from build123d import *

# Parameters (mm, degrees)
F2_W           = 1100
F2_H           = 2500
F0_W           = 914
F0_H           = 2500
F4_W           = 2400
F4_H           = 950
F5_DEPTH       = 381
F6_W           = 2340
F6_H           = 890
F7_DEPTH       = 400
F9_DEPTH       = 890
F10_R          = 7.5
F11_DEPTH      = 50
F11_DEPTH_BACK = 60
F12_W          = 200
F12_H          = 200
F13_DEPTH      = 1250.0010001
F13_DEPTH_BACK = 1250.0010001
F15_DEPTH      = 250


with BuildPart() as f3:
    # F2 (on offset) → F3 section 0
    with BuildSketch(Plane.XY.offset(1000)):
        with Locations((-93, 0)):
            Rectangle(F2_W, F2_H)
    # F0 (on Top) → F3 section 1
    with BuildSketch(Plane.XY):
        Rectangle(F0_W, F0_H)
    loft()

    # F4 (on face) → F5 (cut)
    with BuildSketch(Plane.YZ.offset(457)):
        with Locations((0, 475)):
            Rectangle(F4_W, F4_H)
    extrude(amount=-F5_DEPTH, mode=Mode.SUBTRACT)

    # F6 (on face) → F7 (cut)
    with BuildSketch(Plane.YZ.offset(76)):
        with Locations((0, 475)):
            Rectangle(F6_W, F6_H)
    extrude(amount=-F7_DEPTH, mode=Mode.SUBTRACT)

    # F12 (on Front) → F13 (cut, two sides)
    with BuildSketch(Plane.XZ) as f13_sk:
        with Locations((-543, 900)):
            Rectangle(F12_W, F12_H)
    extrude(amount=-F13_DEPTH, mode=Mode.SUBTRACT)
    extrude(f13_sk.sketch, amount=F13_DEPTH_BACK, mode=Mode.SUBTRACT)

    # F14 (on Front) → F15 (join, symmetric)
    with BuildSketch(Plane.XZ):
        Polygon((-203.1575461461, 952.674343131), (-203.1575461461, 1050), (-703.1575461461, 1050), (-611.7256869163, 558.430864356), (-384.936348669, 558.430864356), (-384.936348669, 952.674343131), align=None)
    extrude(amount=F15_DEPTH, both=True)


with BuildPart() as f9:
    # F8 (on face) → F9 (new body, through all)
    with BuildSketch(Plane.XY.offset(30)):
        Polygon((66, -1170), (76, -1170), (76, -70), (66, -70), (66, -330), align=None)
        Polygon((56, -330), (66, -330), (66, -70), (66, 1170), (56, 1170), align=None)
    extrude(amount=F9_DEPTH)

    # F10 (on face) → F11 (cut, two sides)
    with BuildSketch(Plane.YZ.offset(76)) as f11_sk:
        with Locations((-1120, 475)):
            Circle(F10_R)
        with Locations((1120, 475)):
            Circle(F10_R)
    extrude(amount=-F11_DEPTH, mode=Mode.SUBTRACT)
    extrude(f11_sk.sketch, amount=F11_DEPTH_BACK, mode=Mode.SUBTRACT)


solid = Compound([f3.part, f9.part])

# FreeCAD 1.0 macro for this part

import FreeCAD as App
import Part
import Sketcher

V = App.Vector


def add_polygon(sketch, points):
    """Adds a closed chain of lines whose ends are joined by coincident constraints."""
    first, n = sketch.GeometryCount, len(points)
    for a, b in zip(points, points[1:] + points[:1]):
        sketch.addGeometry(Part.LineSegment(App.Vector(*a, 0), App.Vector(*b, 0)), False)
    for i in range(n):
        sketch.addConstraint(Sketcher.Constraint("Coincident", first + i, 2, first + (i + 1) % n, 1))

doc = App.newDocument("Part")
body = doc.addObject("PartDesign::Body", "Body")

# Sketch on XY plane
sketch1 = body.newObject("Sketcher::SketchObject", "Sketch")
sketch1.AttachmentSupport = (doc.getObject("XY_Plane"), [""])
sketch1.MapMode = "FlatFace"
sketch1.AttachmentOffset = App.Placement(V(0, 0, 1000), App.Rotation())
add_polygon(sketch1, [(-643, 1250), (-643, -1250), (457, -1250), (457, 1250)])  # lines 0-3
sketch1.addConstraint([
    Sketcher.Constraint("Vertical", 0),
    Sketcher.Constraint("Horizontal", 1),
    Sketcher.Constraint("Vertical", 2),
    Sketcher.Constraint("Horizontal", 3),
    Sketcher.Constraint("DistanceX", 1, 1, 1, 2, 1100.0),
    Sketcher.Constraint("DistanceY", 0, 2, 0, 1, 2500.0),
    Sketcher.Constraint("DistanceX", 0, 2, -1, 1, 643.0),
    Sketcher.Constraint("DistanceY", 0, 2, -1, 1, 1250.0),
])

# Sketch on XY plane
sketch2 = body.newObject("Sketcher::SketchObject", "Sketch001")
sketch2.AttachmentSupport = (doc.getObject("XY_Plane"), [""])
sketch2.MapMode = "FlatFace"
add_polygon(sketch2, [(-457, 1250), (-457, -1250), (457, -1250), (457, 1250)])  # lines 0-3
sketch2.addConstraint([
    Sketcher.Constraint("Vertical", 0),
    Sketcher.Constraint("Horizontal", 1),
    Sketcher.Constraint("Vertical", 2),
    Sketcher.Constraint("Horizontal", 3),
    Sketcher.Constraint("Symmetric", 0, 2, 2, 2, -1, 1),
    Sketcher.Constraint("DistanceX", 1, 1, 1, 2, 914.0),
    Sketcher.Constraint("DistanceY", 0, 2, 0, 1, 2500.0),
])

additiveloft = body.newObject("PartDesign::AdditiveLoft", "AdditiveLoft")
additiveloft.Profile = sketch1
additiveloft.Sections = [sketch2]

# Sketch on YZ plane
sketch3 = body.newObject("Sketcher::SketchObject", "Sketch002")
sketch3.AttachmentSupport = (doc.getObject("YZ_Plane"), [""])
sketch3.MapMode = "FlatFace"
sketch3.AttachmentOffset = App.Placement(V(0, 0, 457), App.Rotation())
add_polygon(sketch3, [(-1200, 950), (-1200, 0), (1200, 0), (1200, 950)])  # lines 0-3
sketch3.addConstraint([
    Sketcher.Constraint("Vertical", 0),
    Sketcher.Constraint("Horizontal", 1),
    Sketcher.Constraint("Vertical", 2),
    Sketcher.Constraint("Horizontal", 3),
    Sketcher.Constraint("Symmetric", 0, 2, 1, 2, -1, 1),
    Sketcher.Constraint("DistanceX", 1, 1, 1, 2, 2400.0),
    Sketcher.Constraint("DistanceY", 0, 2, 0, 1, 950.0),
])
pocket1 = body.newObject("PartDesign::Pocket", "Pocket")
pocket1.Profile = sketch3
pocket1.Length = 381

# Sketch on YZ plane
sketch4 = body.newObject("Sketcher::SketchObject", "Sketch003")
sketch4.AttachmentSupport = (doc.getObject("YZ_Plane"), [""])
sketch4.MapMode = "FlatFace"
sketch4.AttachmentOffset = App.Placement(V(0, 0, 76), App.Rotation())
add_polygon(sketch4, [(-1170, 920), (-1170, 30), (1170, 30), (1170, 920)])  # lines 0-3
sketch4.addConstraint([
    Sketcher.Constraint("Vertical", 0),
    Sketcher.Constraint("Horizontal", 1),
    Sketcher.Constraint("Vertical", 2),
    Sketcher.Constraint("Horizontal", 3),
    Sketcher.Constraint("DistanceX", 1, 1, 1, 2, 2340.0),
    Sketcher.Constraint("DistanceY", 0, 2, 0, 1, 890.0),
    Sketcher.Constraint("DistanceX", 0, 2, -1, 1, 1170.0),
    Sketcher.Constraint("DistanceY", -1, 1, 0, 2, 30.0),
])
pocket2 = body.newObject("PartDesign::Pocket", "Pocket001")
pocket2.Profile = sketch4
pocket2.Length = 400

# Sketch on XZ plane
sketch5 = body.newObject("Sketcher::SketchObject", "Sketch004")
sketch5.AttachmentSupport = (doc.getObject("XZ_Plane"), [""])
sketch5.MapMode = "FlatFace"
add_polygon(sketch5, [(-643, 1000), (-643, 800), (-443, 800), (-443, 1000)])  # lines 0-3
sketch5.addConstraint([
    Sketcher.Constraint("Vertical", 0),
    Sketcher.Constraint("Horizontal", 1),
    Sketcher.Constraint("Vertical", 2),
    Sketcher.Constraint("Horizontal", 3),
    Sketcher.Constraint("Equal", 3, 0),
    Sketcher.Constraint("DistanceX", 1, 1, 1, 2, 200.0),
    Sketcher.Constraint("DistanceX", 0, 2, -1, 1, 643.0),
    Sketcher.Constraint("DistanceY", -1, 1, 0, 2, 800.0),
])
pocket3 = body.newObject("PartDesign::Pocket", "Pocket002")
pocket3.Profile = sketch5
pocket3.Type = "ThroughAll"
pocket3.Midplane = True

# Sketch on XZ plane
sketch6 = body.newObject("Sketcher::SketchObject", "Sketch005")
sketch6.AttachmentSupport = (doc.getObject("XZ_Plane"), [""])
sketch6.MapMode = "FlatFace"
add_polygon(sketch6, [(-203, 953), (-203, 1050), (-703, 1050), (-612, 558), (-385, 558), (-385, 953)])  # lines 0-5
sketch6.addConstraint([
    Sketcher.Constraint("Vertical", 0),
    Sketcher.Constraint("Horizontal", 1),
    Sketcher.Constraint("Horizontal", 3),
    Sketcher.Constraint("Vertical", 4),
    Sketcher.Constraint("Horizontal", 5),
    Sketcher.Constraint("DistanceX", 1, 2, 1, 1, 500.0),
    Sketcher.Constraint("Distance", 2, 500.0),
    Sketcher.Constraint("DistanceY", -1, 1, 0, 2, 1050.0),
    Sketcher.Constraint("DistanceX", 3, 1, 3, 2, 226.789338),
    Sketcher.Constraint("DistanceY", 4, 1, 4, 2, 394.243479),
    Sketcher.Constraint("DistanceX", 5, 1, 5, 2, 181.778803),
    Sketcher.Constraint("DistanceX", 3, 2, -1, 1, 384.936349),
])
pad1 = body.newObject("PartDesign::Pad", "Pad")
pad1.Profile = sketch6
pad1.Length = 500
pad1.Midplane = True
body2 = doc.addObject("PartDesign::Body", "Body001")

# Sketch on XY plane
sketch7 = body2.newObject("Sketcher::SketchObject", "Sketch006")
sketch7.AttachmentSupport = (doc.getObject("XY_Plane001"), [""])
sketch7.MapMode = "FlatFace"
sketch7.AttachmentOffset = App.Placement(V(0, 0, 30), App.Rotation())
add_polygon(sketch7, [(66, -1170), (76, -1170), (76, -70), (66, -70), (66, 1170), (56, 1170), (56, -330), (66, -330)])  # lines 0-7
sketch7.addConstraint([
    Sketcher.Constraint("Horizontal", 0),
    Sketcher.Constraint("Vertical", 1),
    Sketcher.Constraint("Horizontal", 2),
    Sketcher.Constraint("Vertical", 3),
    Sketcher.Constraint("Horizontal", 4),
    Sketcher.Constraint("Vertical", 5),
    Sketcher.Constraint("Horizontal", 6),
    Sketcher.Constraint("Vertical", 7),
    Sketcher.Constraint("Symmetric", 3, 2, 7, 2, -1),
    Sketcher.Constraint("Equal", 2, 4),
    Sketcher.Constraint("DistanceX", 0, 1, 0, 2, 10.0),
    Sketcher.Constraint("DistanceY", 1, 1, 1, 2, 1100.0),
    Sketcher.Constraint("DistanceY", 3, 1, 3, 2, 1240.0),
    Sketcher.Constraint("DistanceY", 5, 2, 5, 1, 1500.0),
    Sketcher.Constraint("DistanceX", -1, 1, 0, 2, 76.0),
])
pad2 = body2.newObject("PartDesign::Pad", "Pad001")
pad2.Profile = sketch7
pad2.Length = 890

# Sketch on YZ plane
sketch8 = body2.newObject("Sketcher::SketchObject", "Sketch007")
sketch8.AttachmentSupport = (doc.getObject("YZ_Plane001"), [""])
sketch8.MapMode = "FlatFace"
sketch8.AttachmentOffset = App.Placement(V(0, 0, 76), App.Rotation())
sketch8.addGeometry([
    Part.Circle(V(-1120, 475, 0), V(0, 0, 1), 8),
    Part.Circle(V(1120, 475, 0), V(0, 0, 1), 8),
], False)
sketch8.addConstraint([
    Sketcher.Constraint("Equal", 0, 1),
    Sketcher.Constraint("Symmetric", 0, 3, 1, 3, -2),
    Sketcher.Constraint("Diameter", 0, 15.0),
    Sketcher.Constraint("DistanceX", 0, 3, -1, 1, 1120.0),
    Sketcher.Constraint("DistanceY", -1, 1, 0, 3, 475.0),
])
pocket4 = body2.newObject("PartDesign::Pocket", "Pocket003")
pocket4.Profile = sketch8
pocket4.Type = "ThroughAll"
pocket4.Midplane = True

doc.recompute()
